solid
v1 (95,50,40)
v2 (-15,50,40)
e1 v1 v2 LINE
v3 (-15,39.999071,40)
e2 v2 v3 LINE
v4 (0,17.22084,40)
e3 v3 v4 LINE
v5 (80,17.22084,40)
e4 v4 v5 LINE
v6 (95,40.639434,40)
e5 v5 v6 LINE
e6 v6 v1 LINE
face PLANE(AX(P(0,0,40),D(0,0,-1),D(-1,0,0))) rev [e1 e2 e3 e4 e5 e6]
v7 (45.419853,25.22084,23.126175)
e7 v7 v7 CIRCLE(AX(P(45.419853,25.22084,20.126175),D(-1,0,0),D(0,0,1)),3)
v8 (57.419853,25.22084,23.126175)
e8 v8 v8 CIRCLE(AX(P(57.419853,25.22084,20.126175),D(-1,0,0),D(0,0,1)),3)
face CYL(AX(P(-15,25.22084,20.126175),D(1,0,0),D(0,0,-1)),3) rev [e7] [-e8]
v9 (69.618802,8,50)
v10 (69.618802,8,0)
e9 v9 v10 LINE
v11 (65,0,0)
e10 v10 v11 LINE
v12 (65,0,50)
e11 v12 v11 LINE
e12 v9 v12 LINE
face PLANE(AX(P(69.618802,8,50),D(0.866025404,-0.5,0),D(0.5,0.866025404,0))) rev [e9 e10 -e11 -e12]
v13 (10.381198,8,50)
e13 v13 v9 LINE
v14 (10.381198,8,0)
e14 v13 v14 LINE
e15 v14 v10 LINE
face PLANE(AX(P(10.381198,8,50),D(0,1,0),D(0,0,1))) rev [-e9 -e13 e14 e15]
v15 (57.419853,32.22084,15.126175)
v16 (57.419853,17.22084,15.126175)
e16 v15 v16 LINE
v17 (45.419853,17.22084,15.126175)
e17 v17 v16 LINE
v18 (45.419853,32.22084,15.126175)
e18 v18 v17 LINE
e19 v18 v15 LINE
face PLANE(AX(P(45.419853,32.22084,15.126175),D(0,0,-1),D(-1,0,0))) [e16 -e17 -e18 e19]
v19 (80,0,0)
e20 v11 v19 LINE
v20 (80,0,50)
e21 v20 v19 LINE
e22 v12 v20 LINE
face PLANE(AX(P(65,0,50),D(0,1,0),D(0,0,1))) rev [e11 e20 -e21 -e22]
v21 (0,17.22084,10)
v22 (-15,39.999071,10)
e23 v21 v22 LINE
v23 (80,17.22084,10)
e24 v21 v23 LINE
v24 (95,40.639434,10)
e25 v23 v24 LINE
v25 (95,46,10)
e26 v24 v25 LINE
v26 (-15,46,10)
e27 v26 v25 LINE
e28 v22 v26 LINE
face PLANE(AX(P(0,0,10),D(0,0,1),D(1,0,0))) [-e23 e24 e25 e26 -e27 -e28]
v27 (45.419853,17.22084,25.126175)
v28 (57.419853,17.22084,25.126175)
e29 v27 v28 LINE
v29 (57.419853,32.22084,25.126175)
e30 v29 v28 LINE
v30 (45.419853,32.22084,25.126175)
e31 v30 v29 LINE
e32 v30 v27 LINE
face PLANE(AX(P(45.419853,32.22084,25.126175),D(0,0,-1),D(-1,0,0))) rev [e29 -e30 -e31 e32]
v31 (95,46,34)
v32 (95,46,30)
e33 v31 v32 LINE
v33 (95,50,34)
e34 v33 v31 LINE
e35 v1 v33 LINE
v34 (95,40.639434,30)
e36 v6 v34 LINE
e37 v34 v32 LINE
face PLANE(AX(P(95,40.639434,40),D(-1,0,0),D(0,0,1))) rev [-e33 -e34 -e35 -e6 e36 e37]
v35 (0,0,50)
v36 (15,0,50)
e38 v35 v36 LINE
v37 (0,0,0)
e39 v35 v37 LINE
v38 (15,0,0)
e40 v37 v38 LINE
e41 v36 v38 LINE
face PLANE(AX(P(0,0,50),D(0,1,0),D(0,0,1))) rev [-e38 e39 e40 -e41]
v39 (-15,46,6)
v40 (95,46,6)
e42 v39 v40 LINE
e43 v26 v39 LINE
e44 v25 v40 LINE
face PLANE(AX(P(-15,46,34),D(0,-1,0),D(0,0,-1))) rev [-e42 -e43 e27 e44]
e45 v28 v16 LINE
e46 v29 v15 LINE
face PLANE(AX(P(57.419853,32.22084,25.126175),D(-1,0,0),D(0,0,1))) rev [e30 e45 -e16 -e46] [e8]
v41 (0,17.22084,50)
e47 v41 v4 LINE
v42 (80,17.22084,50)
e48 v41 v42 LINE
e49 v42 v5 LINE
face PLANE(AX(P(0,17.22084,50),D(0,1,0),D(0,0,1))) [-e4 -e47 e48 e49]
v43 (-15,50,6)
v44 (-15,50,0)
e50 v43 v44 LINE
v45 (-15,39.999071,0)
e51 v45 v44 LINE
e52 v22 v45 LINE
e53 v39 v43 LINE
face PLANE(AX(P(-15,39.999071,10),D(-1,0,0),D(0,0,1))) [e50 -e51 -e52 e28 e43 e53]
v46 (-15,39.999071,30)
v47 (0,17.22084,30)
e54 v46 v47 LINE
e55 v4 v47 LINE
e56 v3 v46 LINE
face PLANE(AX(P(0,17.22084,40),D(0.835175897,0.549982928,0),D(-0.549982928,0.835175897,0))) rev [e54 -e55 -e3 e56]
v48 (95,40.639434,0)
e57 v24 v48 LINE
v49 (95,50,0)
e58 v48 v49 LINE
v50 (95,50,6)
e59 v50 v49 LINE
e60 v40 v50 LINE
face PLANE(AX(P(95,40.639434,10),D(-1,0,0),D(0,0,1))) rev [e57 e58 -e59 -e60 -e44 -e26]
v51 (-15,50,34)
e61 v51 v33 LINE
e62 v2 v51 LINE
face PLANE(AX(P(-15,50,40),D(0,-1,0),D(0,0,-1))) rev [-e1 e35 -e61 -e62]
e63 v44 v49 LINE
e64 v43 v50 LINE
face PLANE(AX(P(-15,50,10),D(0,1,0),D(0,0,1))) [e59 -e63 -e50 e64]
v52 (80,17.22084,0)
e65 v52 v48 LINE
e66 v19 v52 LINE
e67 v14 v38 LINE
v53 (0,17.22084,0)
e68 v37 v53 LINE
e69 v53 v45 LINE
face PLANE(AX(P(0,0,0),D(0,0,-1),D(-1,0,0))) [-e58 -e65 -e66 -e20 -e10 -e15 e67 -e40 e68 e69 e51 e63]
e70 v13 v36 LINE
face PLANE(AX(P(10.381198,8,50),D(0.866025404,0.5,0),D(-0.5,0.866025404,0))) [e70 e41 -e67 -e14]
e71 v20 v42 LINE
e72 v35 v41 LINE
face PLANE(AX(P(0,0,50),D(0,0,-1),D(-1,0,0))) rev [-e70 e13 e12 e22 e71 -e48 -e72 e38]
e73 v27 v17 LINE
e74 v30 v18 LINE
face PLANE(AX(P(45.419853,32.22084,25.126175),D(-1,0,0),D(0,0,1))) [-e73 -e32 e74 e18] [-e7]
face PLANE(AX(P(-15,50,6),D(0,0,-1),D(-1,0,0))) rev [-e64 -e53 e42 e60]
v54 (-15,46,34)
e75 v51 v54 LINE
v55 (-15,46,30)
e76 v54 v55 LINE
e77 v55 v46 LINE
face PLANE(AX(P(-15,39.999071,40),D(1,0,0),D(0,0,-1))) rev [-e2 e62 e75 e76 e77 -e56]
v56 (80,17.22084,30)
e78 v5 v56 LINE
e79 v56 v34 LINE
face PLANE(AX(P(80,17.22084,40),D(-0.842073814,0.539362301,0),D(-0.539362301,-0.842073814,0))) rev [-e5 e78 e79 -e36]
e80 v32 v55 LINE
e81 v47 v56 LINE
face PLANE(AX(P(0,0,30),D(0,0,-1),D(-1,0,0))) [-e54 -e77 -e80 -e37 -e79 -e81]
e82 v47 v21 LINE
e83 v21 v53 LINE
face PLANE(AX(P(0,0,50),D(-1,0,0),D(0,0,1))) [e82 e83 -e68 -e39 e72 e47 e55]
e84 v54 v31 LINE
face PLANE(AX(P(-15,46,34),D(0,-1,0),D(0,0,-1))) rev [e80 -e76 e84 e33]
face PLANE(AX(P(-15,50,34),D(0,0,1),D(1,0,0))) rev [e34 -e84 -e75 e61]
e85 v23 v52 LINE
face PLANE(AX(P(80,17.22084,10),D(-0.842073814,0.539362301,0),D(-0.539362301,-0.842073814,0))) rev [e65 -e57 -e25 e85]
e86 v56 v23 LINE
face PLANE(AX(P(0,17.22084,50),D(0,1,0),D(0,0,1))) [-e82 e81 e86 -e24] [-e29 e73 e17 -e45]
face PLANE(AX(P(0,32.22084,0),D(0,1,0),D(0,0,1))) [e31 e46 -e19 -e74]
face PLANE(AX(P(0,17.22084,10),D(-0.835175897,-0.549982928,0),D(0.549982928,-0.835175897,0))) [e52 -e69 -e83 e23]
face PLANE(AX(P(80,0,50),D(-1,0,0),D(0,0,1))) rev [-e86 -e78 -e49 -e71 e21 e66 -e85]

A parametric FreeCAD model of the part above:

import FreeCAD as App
import Part
import Sketcher
Q = App.Units.Quantity

doc = App.newDocument("Part")
body = doc.addObject("PartDesign::Body", "Body")

sketch1 = body.newObject("Sketcher::SketchObject", "Sketch")
sketch1.AttachmentSupport = (doc.getObject("XY_Plane"), [""])
sketch1.MapMode = "FlatFace"
sketch1.addGeometry([
    Part.LineSegment(App.Vector(70, 8, 0), App.Vector(65, 0, 0)),
    Part.LineSegment(App.Vector(65, 0, 0), App.Vector(80, 0, 0)),
    Part.LineSegment(App.Vector(80, 0, 0), App.Vector(80, 17, 0)),
    Part.LineSegment(App.Vector(80, 17, 0), App.Vector(0, 17, 0)),
    Part.LineSegment(App.Vector(0, 17, 0), App.Vector(0, 0, 0)),
    Part.LineSegment(App.Vector(0, 0, 0), App.Vector(15, 0, 0)),
    Part.LineSegment(App.Vector(15, 0, 0), App.Vector(10, 8, 0)),
    Part.LineSegment(App.Vector(10, 8, 0), App.Vector(70, 8, 0)),
], False)
sketch1.addConstraint([
    Sketcher.Constraint("Coincident", 0, 2, 1, 1),
    Sketcher.Constraint("Coincident", 1, 2, 2, 1),
    Sketcher.Constraint("Coincident", 2, 2, 3, 1),
    Sketcher.Constraint("Coincident", 3, 2, 4, 1),
    Sketcher.Constraint("Coincident", 4, 2, 5, 1),
    Sketcher.Constraint("Coincident", 5, 2, 6, 1),
    Sketcher.Constraint("Coincident", 6, 2, 7, 1),
    Sketcher.Constraint("Coincident", 7, 2, 0, 1),
    Sketcher.Constraint("Horizontal", 1),
    Sketcher.Constraint("Vertical", 2),
    Sketcher.Constraint("Horizontal", 3),
    Sketcher.Constraint("Vertical", 4),
    Sketcher.Constraint("Horizontal", 5),
    Sketcher.Constraint("Horizontal", 7),
    Sketcher.Constraint("Coincident", 4, 2, -1, 1),
    Sketcher.Constraint("PointOnObject", 0, 2, -1),
    Sketcher.Constraint("Equal", 1, 5),
    Sketcher.Constraint("Equal", 0, 6),
    Sketcher.Constraint("DistanceX", 1, 1, 1, 2, 15.0),
    Sketcher.Constraint("DistanceX", 3, 2, 3, 1, 80.0),
    Sketcher.Constraint("Angle", 0, Q("-120 deg")),
    Sketcher.Constraint("DistanceY", -1, 1, 6, 2, 8.0),
    Sketcher.Constraint("DistanceY", 2, 1, 2, 2, 17.22084),
])
pad1 = body.newObject("PartDesign::Pad", "Pad")
pad1.Profile = sketch1
pad1.Length = 50

sketch2 = body.newObject("Sketcher::SketchObject", "Sketch001")
sketch2.AttachmentSupport = (doc.getObject("XY_Plane"), [""])
sketch2.MapMode = "FlatFace"
sketch2.addGeometry([
    Part.LineSegment(App.Vector(0, 17, 0), App.Vector(80, 17, 0)),
    Part.LineSegment(App.Vector(80, 17, 0), App.Vector(95, 41, 0)),
    Part.LineSegment(App.Vector(95, 41, 0), App.Vector(95, 50, 0)),
    Part.LineSegment(App.Vector(95, 50, 0), App.Vector(-15, 50, 0)),
    Part.LineSegment(App.Vector(-15, 50, 0), App.Vector(-15, 40, 0)),
    Part.LineSegment(App.Vector(-15, 40, 0), App.Vector(0, 17, 0)),
], False)
sketch2.addConstraint([
    Sketcher.Constraint("Coincident", 0, 2, 1, 1),
    Sketcher.Constraint("Coincident", 1, 2, 2, 1),
    Sketcher.Constraint("Coincident", 2, 2, 3, 1),
    Sketcher.Constraint("Coincident", 3, 2, 4, 1),
    Sketcher.Constraint("Coincident", 4, 2, 5, 1),
    Sketcher.Constraint("Coincident", 5, 2, 0, 1),
    Sketcher.Constraint("Horizontal", 0),
    Sketcher.Constraint("Vertical", 2),
    Sketcher.Constraint("Horizontal", 3),
    Sketcher.Constraint("Vertical", 4),
    Sketcher.Constraint("PointOnObject", 5, 2, -2),
    Sketcher.Constraint("DistanceX", 0, 1, 0, 2, 80.0),
    Sketcher.Constraint("DistanceX", 3, 2, 3, 1, 110.0),
    Sketcher.Constraint("DistanceX", -1, 1, 1, 2, 95.0),
    Sketcher.Constraint("DistanceY", -1, 1, 2, 2, 50.0),
    Sketcher.Constraint("DistanceY", 4, 2, 4, 1, 10.000929),
    Sketcher.Constraint("Distance", 1, 27.81062),
    Sketcher.Constraint("DistanceY", 2, 1, 2, 2, 9.360566),
])
pad2 = body.newObject("PartDesign::Pad", "Pad001")
pad2.Profile = sketch2
pad2.Length = 10

sketch3 = body.newObject("Sketcher::SketchObject", "Sketch002")
sketch3.AttachmentSupport = (doc.getObject("XY_Plane"), [""])
sketch3.MapMode = "FlatFace"
sketch3.AttachmentOffset = App.Placement(App.Vector(0, 0, 30), App.Rotation())
sketch3.addGeometry([
    Part.LineSegment(App.Vector(0, 17, 0), App.Vector(80, 17, 0)),
    Part.LineSegment(App.Vector(80, 17, 0), App.Vector(95, 41, 0)),
    Part.LineSegment(App.Vector(95, 41, 0), App.Vector(95, 50, 0)),
    Part.LineSegment(App.Vector(95, 50, 0), App.Vector(-15, 50, 0)),
    Part.LineSegment(App.Vector(-15, 50, 0), App.Vector(-15, 40, 0)),
    Part.LineSegment(App.Vector(-15, 40, 0), App.Vector(0, 17, 0)),
], False)
sketch3.addConstraint([
    Sketcher.Constraint("Coincident", 0, 2, 1, 1),
    Sketcher.Constraint("Coincident", 1, 2, 2, 1),
    Sketcher.Constraint("Coincident", 2, 2, 3, 1),
    Sketcher.Constraint("Coincident", 3, 2, 4, 1),
    Sketcher.Constraint("Coincident", 4, 2, 5, 1),
    Sketcher.Constraint("Coincident", 5, 2, 0, 1),
    Sketcher.Constraint("Horizontal", 0),
    Sketcher.Constraint("Vertical", 2),
    Sketcher.Constraint("Horizontal", 3),
    Sketcher.Constraint("Vertical", 4),
    Sketcher.Constraint("PointOnObject", 5, 2, -2),
    Sketcher.Constraint("DistanceX", 0, 1, 0, 2, 80.0),
    Sketcher.Constraint("DistanceX", 3, 2, 3, 1, 110.0),
    Sketcher.Constraint("DistanceX", -1, 1, 1, 2, 95.0),
    Sketcher.Constraint("DistanceY", -1, 1, 2, 2, 50.0),
    Sketcher.Constraint("DistanceY", 4, 2, 4, 1, 10.000929),
    Sketcher.Constraint("Distance", 1, 27.81062),
    Sketcher.Constraint("DistanceY", 2, 1, 2, 2, 9.360566),
])
pad3 = body.newObject("PartDesign::Pad", "Pad002")
pad3.Profile = sketch3
pad3.Length = 10

sketch4 = body.newObject("Sketcher::SketchObject", "Sketch003")
sketch4.AttachmentSupport = (doc.getObject("XZ_Plane"), [""])
sketch4.MapMode = "FlatFace"
sketch4.AttachmentOffset = App.Placement(App.Vector(0, 0, -17.22084), App.Rotation())
sketch4.addGeometry([
    Part.LineSegment(App.Vector(45, 15, 0), App.Vector(45, 25, 0)),
    Part.LineSegment(App.Vector(45, 25, 0), App.Vector(57, 25, 0)),
    Part.LineSegment(App.Vector(57, 25, 0), App.Vector(57, 15, 0)),
    Part.LineSegment(App.Vector(57, 15, 0), App.Vector(45, 15, 0)),
], False)
sketch4.addConstraint([
    Sketcher.Constraint("Coincident", 0, 2, 1, 1),
    Sketcher.Constraint("Coincident", 1, 2, 2, 1),
    Sketcher.Constraint("Coincident", 2, 2, 3, 1),
    Sketcher.Constraint("Coincident", 3, 2, 0, 1),
    Sketcher.Constraint("Vertical", 0),
    Sketcher.Constraint("Horizontal", 1),
    Sketcher.Constraint("Vertical", 2),
    Sketcher.Constraint("Horizontal", 3),
    Sketcher.Constraint("DistanceX", 1, 1, 1, 2, 12.0),
    Sketcher.Constraint("DistanceY", 0, 1, 0, 2, 10.0),
    Sketcher.Constraint("DistanceX", -1, 1, 0, 2, 45.419853),
    Sketcher.Constraint("DistanceY", -1, 1, 0, 2, 25.126175),
])
pad4 = body.newObject("PartDesign::Pad", "Pad003")
pad4.Profile = sketch4
pad4.Length = 15
pad4.Reversed = True

sketch5 = body.newObject("Sketcher::SketchObject", "Sketch004")
sketch5.AttachmentSupport = (doc.getObject("YZ_Plane"), [""])
sketch5.MapMode = "FlatFace"
sketch5.addGeometry([
    Part.Circle(App.Vector(25.2, 20.1, 0), App.Vector(0, 0, 1), 3),
    Part.LineSegment(App.Vector(50, 34, 0), App.Vector(46, 34, 0)),
    Part.LineSegment(App.Vector(46, 34, 0), App.Vector(46, 6, 0)),
    Part.LineSegment(App.Vector(46, 6, 0), App.Vector(50, 6, 0)),
    Part.LineSegment(App.Vector(50, 6, 0), App.Vector(50, 34, 0)),
], False)
sketch5.addConstraint([
    Sketcher.Constraint("Coincident", 1, 2, 2, 1),
    Sketcher.Constraint("Coincident", 2, 2, 3, 1),
    Sketcher.Constraint("Coincident", 3, 2, 4, 1),
    Sketcher.Constraint("Coincident", 4, 2, 1, 1),
    Sketcher.Constraint("Horizontal", 1),
    Sketcher.Constraint("Vertical", 2),
    Sketcher.Constraint("Horizontal", 3),
    Sketcher.Constraint("Vertical", 4),
    Sketcher.Constraint("Diameter", 0, 6.0),
    Sketcher.Constraint("DistanceX", 1, 2, 1, 1, 4.0),
    Sketcher.Constraint("DistanceY", 2, 2, 2, 1, 28.0),
    Sketcher.Constraint("DistanceX", -1, 1, 1, 2, 46.0),
    Sketcher.Constraint("DistanceY", -1, 1, 1, 2, 34.0),
    Sketcher.Constraint("DistanceX", -1, 1, 0, 3, 25.22084),
    Sketcher.Constraint("DistanceY", -1, 1, 0, 3, 20.126175),
])
pocket1 = body.newObject("PartDesign::Pocket", "Pocket")
pocket1.Profile = sketch5
pocket1.Type = "ThroughAll"
pocket1.Midplane = True

doc.recompute()
